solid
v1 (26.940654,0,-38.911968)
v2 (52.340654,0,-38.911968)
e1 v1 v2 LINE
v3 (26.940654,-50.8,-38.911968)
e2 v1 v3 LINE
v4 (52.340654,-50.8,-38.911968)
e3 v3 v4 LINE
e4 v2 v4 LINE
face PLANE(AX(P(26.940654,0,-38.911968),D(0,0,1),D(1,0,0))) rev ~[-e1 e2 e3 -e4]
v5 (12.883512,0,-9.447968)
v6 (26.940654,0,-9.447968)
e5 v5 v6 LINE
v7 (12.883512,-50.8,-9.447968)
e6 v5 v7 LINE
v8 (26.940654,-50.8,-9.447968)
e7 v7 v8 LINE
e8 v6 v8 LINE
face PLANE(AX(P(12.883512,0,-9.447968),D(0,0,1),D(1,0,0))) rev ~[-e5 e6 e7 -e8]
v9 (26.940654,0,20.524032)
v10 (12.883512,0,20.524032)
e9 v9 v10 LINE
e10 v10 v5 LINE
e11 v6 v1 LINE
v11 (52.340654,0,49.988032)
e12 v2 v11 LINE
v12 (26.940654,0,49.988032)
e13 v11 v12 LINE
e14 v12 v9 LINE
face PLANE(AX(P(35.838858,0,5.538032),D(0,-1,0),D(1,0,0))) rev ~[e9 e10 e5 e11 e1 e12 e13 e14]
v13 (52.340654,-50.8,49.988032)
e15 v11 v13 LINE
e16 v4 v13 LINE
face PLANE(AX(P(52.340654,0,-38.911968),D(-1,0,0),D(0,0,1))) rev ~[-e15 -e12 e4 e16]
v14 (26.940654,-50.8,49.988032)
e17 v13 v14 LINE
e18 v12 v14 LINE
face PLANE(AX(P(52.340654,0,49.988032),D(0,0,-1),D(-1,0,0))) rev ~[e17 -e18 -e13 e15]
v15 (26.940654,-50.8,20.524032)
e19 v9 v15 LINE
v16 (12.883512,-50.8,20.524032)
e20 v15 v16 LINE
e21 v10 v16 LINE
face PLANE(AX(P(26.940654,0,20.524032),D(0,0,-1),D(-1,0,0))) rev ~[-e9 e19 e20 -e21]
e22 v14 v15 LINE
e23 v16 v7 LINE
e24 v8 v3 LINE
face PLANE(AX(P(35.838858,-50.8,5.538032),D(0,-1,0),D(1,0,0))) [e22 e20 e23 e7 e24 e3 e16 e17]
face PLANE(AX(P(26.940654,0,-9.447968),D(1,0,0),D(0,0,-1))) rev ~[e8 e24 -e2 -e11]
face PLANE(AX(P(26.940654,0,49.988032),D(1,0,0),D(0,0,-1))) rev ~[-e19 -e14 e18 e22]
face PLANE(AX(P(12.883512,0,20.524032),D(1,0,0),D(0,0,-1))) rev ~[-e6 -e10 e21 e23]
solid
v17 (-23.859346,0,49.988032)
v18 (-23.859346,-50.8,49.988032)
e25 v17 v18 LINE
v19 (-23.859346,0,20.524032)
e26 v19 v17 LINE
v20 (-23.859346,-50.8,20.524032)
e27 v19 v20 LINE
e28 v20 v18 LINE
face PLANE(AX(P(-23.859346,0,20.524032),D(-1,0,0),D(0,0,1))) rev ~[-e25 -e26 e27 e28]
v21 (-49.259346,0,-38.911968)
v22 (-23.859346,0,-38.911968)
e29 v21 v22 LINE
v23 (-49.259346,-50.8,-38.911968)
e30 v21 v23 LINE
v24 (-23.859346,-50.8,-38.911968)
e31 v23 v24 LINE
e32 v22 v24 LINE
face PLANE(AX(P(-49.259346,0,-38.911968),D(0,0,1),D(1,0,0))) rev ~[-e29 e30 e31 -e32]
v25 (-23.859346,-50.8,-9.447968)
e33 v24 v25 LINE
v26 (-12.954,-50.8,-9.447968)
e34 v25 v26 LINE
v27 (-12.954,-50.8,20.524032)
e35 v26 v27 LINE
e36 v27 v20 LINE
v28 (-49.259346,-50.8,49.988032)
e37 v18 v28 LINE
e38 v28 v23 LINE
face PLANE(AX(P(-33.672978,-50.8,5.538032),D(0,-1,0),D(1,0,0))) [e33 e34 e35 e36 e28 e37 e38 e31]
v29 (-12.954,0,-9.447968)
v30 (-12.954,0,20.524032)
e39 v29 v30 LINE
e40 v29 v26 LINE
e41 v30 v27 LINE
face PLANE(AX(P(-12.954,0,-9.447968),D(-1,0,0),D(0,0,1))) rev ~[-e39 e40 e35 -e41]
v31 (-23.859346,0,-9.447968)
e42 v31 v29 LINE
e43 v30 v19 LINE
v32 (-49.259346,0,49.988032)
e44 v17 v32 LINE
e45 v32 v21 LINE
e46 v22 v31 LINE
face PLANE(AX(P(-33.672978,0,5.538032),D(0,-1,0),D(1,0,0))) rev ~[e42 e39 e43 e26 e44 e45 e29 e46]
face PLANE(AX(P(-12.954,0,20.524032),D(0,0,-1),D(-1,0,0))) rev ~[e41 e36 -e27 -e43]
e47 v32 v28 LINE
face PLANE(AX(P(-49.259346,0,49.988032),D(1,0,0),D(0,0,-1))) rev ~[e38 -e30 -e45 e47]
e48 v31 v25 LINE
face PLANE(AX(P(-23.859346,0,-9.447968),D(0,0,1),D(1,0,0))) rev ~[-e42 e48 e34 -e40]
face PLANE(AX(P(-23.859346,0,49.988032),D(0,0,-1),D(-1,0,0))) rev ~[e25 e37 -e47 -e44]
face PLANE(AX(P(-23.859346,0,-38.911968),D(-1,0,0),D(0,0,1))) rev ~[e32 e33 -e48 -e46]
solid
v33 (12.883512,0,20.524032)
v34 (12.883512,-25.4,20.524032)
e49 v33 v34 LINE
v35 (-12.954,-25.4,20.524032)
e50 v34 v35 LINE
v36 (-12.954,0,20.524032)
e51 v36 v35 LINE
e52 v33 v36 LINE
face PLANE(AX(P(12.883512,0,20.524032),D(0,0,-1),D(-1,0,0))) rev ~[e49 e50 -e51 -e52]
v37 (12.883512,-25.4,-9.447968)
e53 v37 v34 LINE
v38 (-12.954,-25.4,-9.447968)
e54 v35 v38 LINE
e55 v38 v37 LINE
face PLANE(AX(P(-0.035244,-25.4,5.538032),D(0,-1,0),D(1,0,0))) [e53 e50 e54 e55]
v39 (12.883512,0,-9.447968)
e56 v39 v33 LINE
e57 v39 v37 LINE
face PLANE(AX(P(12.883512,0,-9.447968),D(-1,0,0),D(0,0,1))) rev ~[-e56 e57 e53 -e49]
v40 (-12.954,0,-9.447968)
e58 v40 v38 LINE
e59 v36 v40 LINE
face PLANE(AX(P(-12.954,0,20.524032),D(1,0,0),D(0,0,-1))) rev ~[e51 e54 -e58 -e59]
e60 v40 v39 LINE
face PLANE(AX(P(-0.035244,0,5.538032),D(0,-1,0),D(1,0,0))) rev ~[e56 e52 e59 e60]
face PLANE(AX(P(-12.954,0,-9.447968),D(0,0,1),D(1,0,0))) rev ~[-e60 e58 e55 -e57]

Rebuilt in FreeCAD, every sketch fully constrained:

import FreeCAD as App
import Part
import Sketcher
from FreeCAD import Vector
Q = App.Units.Quantity

doc = App.newDocument("Part")
body = doc.addObject("PartDesign::Body", "Body")
body.AllowCompound = True

# Sketch on XZ plane
sketch1 = body.newObject("Sketcher::SketchObject", "Sketch")
sketch1.AttachmentSupport = (doc.getObject("XZ_Plane"), [""])
sketch1.MapMode = "FlatFace"
sketch1.addGeometry(Part.LineSegment(Vector(-13, -9, 0), Vector(-13, 21, 0)), False)
sketch1.addGeometry(Part.LineSegment(Vector(-13, 21, 0), Vector(-24, 21, 0)), False)
sketch1.addGeometry(Part.LineSegment(Vector(-24, 21, 0), Vector(-24, 50, 0)), False)
sketch1.addGeometry(Part.LineSegment(Vector(-24, 50, 0), Vector(-49, 50, 0)), False)
sketch1.addGeometry(Part.LineSegment(Vector(-49, 50, 0), Vector(-49, -39, 0)), False)
sketch1.addGeometry(Part.LineSegment(Vector(-49, -39, 0), Vector(-24, -39, 0)), False)
sketch1.addGeometry(Part.LineSegment(Vector(-24, -39, 0), Vector(-24, -9, 0)), False)
sketch1.addGeometry(Part.LineSegment(Vector(-24, -9, 0), Vector(-13, -9, 0)), False)
sketch1.addGeometry(Part.LineSegment(Vector(52, -39, 0), Vector(52, 50, 0)), False)
sketch1.addGeometry(Part.LineSegment(Vector(52, 50, 0), Vector(27, 50, 0)), False)
sketch1.addGeometry(Part.LineSegment(Vector(27, 50, 0), Vector(27, 21, 0)), False)
sketch1.addGeometry(Part.LineSegment(Vector(27, 21, 0), Vector(13, 21, 0)), False)
sketch1.addGeometry(Part.LineSegment(Vector(13, 21, 0), Vector(13, -9, 0)), False)
sketch1.addGeometry(Part.LineSegment(Vector(13, -9, 0), Vector(27, -9, 0)), False)
sketch1.addGeometry(Part.LineSegment(Vector(27, -9, 0), Vector(27, -39, 0)), False)
sketch1.addGeometry(Part.LineSegment(Vector(27, -39, 0), Vector(52, -39, 0)), False)
sketch1.addConstraint(Sketcher.Constraint("Coincident", 0, 2, 1, 1))
sketch1.addConstraint(Sketcher.Constraint("Coincident", 1, 2, 2, 1))
sketch1.addConstraint(Sketcher.Constraint("Coincident", 2, 2, 3, 1))
sketch1.addConstraint(Sketcher.Constraint("Coincident", 3, 2, 4, 1))
sketch1.addConstraint(Sketcher.Constraint("Coincident", 4, 2, 5, 1))
sketch1.addConstraint(Sketcher.Constraint("Coincident", 5, 2, 6, 1))
sketch1.addConstraint(Sketcher.Constraint("Coincident", 6, 2, 7, 1))
sketch1.addConstraint(Sketcher.Constraint("Coincident", 7, 2, 0, 1))
sketch1.addConstraint(Sketcher.Constraint("Coincident", 8, 2, 9, 1))
sketch1.addConstraint(Sketcher.Constraint("Coincident", 9, 2, 10, 1))
sketch1.addConstraint(Sketcher.Constraint("Coincident", 10, 2, 11, 1))
sketch1.addConstraint(Sketcher.Constraint("Coincident", 11, 2, 12, 1))
sketch1.addConstraint(Sketcher.Constraint("Coincident", 12, 2, 13, 1))
sketch1.addConstraint(Sketcher.Constraint("Coincident", 13, 2, 14, 1))
sketch1.addConstraint(Sketcher.Constraint("Coincident", 14, 2, 15, 1))
sketch1.addConstraint(Sketcher.Constraint("Coincident", 15, 2, 8, 1))
sketch1.addConstraint(Sketcher.Constraint("Vertical", 0))
sketch1.addConstraint(Sketcher.Constraint("Horizontal", 1))
sketch1.addConstraint(Sketcher.Constraint("Vertical", 2))
sketch1.addConstraint(Sketcher.Constraint("Horizontal", 3))
sketch1.addConstraint(Sketcher.Constraint("Vertical", 4))
sketch1.addConstraint(Sketcher.Constraint("Horizontal", 5))
sketch1.addConstraint(Sketcher.Constraint("Vertical", 6))
sketch1.addConstraint(Sketcher.Constraint("Horizontal", 7))
sketch1.addConstraint(Sketcher.Constraint("Vertical", 8))
sketch1.addConstraint(Sketcher.Constraint("Horizontal", 9))
sketch1.addConstraint(Sketcher.Constraint("Vertical", 10))
sketch1.addConstraint(Sketcher.Constraint("Horizontal", 11))
sketch1.addConstraint(Sketcher.Constraint("Vertical", 12))
sketch1.addConstraint(Sketcher.Constraint("Horizontal", 13))
sketch1.addConstraint(Sketcher.Constraint("Vertical", 14))
sketch1.addConstraint(Sketcher.Constraint("Horizontal", 15))
sketch1.addConstraint(Sketcher.Constraint("Horizontal", 3, 2, 8, 2))
sketch1.addConstraint(Sketcher.Constraint("Horizontal", 1, 2, 10, 2))
sketch1.addConstraint(Sketcher.Constraint("Horizontal", 7, 2, 12, 2))
sketch1.addConstraint(Sketcher.Constraint("Horizontal", 5, 2, 14, 2))
sketch1.addConstraint(Sketcher.Constraint("Vertical", 2, 2, 5, 2))
sketch1.addConstraint(Sketcher.Constraint("Vertical", 10, 2, 13, 2))
sketch1.addConstraint(Sketcher.Constraint("Equal", 5, 9))
sketch1.addConstraint(Sketcher.Constraint("Equal", 2, 6))
sketch1.addConstraint(Sketcher.Constraint("DistanceX", 3, 2, 3, 1, Q("1 in")))
sketch1.addConstraint(Sketcher.Constraint("DistanceY", 4, 2, 4, 1, Q("3.5 in")))
sketch1.addConstraint(Sketcher.Constraint("DistanceX", 2, 2, 8, 2, Q("3 in")))
sketch1.addConstraint(Sketcher.Constraint("DistanceY", 0, 1, 0, 2, Q("1.18 in")))
sketch1.addConstraint(Sketcher.Constraint("DistanceX", 0, 2, -1, 1, Q("0.51 in")))
sketch1.addConstraint(Sketcher.Constraint("DistanceX", 11, 2, 11, 1, Q("14.057142 mm")))
sketch1.addConstraint(Sketcher.Constraint("DistanceX", 1, 2, 1, 1, Q("10.905346 mm")))
sketch1.addConstraint(Sketcher.Constraint("DistanceY", -1, 1, 0, 2, Q("20.524032 mm")))
pad1 = body.newObject("PartDesign::Pad", "Pad")
pad1.Profile = sketch1
pad1.Length = Q("2 in")
body2 = doc.addObject("PartDesign::Body", "Body001")

# Sketch on XZ plane
sketch2 = body2.newObject("Sketcher::SketchObject", "Sketch001")
sketch2.AttachmentSupport = (doc.getObject("XZ_Plane001"), [""])
sketch2.MapMode = "FlatFace"
sketch2.addGeometry(Part.LineSegment(Vector(13, 21, 0), Vector(-13, 21, 0)), False)
sketch2.addGeometry(Part.LineSegment(Vector(-13, 21, 0), Vector(-13, -9, 0)), False)
sketch2.addGeometry(Part.LineSegment(Vector(-13, -9, 0), Vector(13, -9, 0)), False)
sketch2.addGeometry(Part.LineSegment(Vector(13, -9, 0), Vector(13, 21, 0)), False)
sketch2.addConstraint(Sketcher.Constraint("Coincident", 0, 2, 1, 1))
sketch2.addConstraint(Sketcher.Constraint("Coincident", 1, 2, 2, 1))
sketch2.addConstraint(Sketcher.Constraint("Coincident", 2, 2, 3, 1))
sketch2.addConstraint(Sketcher.Constraint("Coincident", 3, 2, 0, 1))
sketch2.addConstraint(Sketcher.Constraint("Horizontal", 0))
sketch2.addConstraint(Sketcher.Constraint("Vertical", 1))
sketch2.addConstraint(Sketcher.Constraint("Horizontal", 2))
sketch2.addConstraint(Sketcher.Constraint("Vertical", 3))
sketch2.addConstraint(Sketcher.Constraint("DistanceY", 1, 2, 1, 1, Q("1.18 in")))
sketch2.addConstraint(Sketcher.Constraint("DistanceX", 0, 2, -1, 1, Q("0.51 in")))
sketch2.addConstraint(Sketcher.Constraint("DistanceX", 0, 2, 0, 1, Q("25.837512 mm")))
sketch2.addConstraint(Sketcher.Constraint("DistanceY", -1, 1, 0, 2, Q("20.524032 mm")))
pad2 = body2.newObject("PartDesign::Pad", "Pad001")
pad2.Profile = sketch2
pad2.Length = Q("1 in")

doc.recompute()
